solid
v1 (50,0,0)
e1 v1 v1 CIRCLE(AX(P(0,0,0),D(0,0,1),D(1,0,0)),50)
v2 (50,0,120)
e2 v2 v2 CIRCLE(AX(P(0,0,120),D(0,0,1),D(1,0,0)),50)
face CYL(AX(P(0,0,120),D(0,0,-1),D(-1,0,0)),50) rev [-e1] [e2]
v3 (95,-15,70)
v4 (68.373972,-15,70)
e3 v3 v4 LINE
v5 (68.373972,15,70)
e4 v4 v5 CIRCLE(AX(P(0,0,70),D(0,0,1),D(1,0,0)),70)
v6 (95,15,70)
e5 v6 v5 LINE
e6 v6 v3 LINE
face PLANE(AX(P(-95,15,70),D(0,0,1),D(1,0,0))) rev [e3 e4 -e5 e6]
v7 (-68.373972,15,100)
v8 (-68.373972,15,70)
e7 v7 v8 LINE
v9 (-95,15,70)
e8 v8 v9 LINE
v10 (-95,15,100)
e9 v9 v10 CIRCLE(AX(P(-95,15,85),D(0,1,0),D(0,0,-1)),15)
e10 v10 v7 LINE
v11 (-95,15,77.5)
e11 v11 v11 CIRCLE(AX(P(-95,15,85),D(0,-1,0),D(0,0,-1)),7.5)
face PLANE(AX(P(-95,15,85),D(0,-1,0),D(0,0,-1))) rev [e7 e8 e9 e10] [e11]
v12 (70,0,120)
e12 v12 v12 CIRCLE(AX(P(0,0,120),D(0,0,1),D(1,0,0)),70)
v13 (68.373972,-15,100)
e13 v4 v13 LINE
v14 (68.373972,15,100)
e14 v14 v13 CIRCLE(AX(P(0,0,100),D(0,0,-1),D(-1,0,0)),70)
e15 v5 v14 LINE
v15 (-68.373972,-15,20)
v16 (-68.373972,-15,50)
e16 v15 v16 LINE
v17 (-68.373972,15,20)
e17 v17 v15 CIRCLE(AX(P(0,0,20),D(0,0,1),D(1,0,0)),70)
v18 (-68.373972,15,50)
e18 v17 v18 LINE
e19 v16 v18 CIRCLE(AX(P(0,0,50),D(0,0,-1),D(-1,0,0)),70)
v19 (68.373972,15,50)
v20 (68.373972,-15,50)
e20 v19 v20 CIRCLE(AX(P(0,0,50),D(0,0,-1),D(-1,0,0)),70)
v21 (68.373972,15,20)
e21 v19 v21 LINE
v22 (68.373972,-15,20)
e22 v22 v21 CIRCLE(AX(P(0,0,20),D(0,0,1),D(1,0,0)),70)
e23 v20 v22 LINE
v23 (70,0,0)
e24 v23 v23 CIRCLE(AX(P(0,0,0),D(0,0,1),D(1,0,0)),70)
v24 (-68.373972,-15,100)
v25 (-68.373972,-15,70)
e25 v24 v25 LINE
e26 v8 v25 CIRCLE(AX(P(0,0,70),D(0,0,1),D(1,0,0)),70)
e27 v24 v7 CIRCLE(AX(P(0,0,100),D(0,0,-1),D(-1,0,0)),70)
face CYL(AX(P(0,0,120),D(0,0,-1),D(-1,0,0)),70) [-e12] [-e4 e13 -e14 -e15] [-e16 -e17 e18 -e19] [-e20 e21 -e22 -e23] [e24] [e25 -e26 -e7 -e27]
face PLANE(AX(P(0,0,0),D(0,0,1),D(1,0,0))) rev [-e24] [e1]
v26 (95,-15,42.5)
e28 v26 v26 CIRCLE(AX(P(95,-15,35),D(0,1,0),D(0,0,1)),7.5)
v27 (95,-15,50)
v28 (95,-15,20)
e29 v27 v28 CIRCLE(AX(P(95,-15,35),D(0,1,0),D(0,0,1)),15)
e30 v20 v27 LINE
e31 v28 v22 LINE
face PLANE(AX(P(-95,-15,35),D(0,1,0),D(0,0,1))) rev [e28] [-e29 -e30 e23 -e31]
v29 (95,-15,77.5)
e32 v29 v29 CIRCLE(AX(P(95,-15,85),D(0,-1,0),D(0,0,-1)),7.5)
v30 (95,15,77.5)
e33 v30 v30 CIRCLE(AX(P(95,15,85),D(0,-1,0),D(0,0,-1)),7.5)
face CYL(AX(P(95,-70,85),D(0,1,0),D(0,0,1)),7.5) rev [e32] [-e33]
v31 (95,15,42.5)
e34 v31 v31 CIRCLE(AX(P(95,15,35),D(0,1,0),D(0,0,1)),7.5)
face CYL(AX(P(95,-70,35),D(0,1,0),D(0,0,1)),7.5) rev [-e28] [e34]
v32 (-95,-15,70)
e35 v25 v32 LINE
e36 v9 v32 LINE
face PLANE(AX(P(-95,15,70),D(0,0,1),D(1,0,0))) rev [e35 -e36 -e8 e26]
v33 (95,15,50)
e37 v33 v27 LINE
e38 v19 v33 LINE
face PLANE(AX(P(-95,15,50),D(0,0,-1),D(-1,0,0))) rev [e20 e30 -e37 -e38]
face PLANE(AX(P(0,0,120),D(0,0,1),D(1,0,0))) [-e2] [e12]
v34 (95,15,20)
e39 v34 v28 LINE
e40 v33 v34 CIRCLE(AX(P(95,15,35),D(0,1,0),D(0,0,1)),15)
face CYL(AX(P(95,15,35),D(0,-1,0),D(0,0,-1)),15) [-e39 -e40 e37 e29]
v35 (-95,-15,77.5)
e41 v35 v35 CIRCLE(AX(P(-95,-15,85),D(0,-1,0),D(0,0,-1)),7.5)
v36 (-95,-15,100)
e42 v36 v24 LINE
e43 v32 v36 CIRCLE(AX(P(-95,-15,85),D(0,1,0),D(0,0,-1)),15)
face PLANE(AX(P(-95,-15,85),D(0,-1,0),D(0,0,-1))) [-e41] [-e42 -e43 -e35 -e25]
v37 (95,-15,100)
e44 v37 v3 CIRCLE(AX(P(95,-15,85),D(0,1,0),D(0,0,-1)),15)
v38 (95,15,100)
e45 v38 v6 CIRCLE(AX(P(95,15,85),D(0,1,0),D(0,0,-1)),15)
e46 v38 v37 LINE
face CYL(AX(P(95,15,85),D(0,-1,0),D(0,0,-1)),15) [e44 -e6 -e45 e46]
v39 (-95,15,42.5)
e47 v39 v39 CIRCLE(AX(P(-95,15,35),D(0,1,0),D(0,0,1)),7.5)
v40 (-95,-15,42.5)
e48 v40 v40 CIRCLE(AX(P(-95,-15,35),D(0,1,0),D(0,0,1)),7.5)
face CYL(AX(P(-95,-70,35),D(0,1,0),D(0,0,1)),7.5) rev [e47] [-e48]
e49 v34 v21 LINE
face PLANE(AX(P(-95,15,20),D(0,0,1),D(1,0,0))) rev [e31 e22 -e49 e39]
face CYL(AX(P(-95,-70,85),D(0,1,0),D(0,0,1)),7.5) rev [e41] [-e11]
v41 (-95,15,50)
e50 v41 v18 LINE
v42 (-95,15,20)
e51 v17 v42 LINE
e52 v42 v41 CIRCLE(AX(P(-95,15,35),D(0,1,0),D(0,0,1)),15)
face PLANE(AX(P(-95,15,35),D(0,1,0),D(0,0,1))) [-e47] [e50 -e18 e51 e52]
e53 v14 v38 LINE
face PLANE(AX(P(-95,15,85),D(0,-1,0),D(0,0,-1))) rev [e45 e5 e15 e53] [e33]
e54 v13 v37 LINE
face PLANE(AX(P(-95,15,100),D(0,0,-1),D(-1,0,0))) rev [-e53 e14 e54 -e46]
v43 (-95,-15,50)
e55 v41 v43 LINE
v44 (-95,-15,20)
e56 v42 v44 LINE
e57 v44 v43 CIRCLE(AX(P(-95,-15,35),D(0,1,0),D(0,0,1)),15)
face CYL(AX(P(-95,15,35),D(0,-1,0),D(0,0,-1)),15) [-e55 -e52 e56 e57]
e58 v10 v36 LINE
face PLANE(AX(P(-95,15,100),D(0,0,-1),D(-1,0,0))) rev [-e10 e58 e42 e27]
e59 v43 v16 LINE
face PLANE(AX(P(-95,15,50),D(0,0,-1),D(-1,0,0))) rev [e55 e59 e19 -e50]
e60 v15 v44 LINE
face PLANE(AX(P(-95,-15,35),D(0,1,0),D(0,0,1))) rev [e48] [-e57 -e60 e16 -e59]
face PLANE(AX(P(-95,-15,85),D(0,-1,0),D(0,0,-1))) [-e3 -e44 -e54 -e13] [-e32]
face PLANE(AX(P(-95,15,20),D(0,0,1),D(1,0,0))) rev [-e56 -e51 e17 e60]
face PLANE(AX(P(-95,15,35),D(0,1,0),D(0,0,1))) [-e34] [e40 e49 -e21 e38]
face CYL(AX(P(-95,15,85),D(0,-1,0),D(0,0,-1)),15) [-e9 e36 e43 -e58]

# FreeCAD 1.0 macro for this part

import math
import FreeCAD as App
import Part
import Sketcher
from FreeCAD import Vector
Q = App.Units.Quantity

doc = App.newDocument("Part")
body = doc.addObject("PartDesign::Body", "Body")

sketch1 = body.newObject("Sketcher::SketchObject", "Sketch")
sketch1.AttachmentSupport = (doc.getObject("XY_Plane"), [""])
sketch1.MapMode = "FlatFace"
sketch1.addGeometry(Part.Circle(Vector(0, 0, 0), Vector(0, 0, 1), 70), False)
sketch1.addConstraint([
    Sketcher.Constraint("Coincident", 0, 3, -1, 1),
    Sketcher.Constraint("Diameter", 0, Q("140 mm")),
])
pad1 = body.newObject("PartDesign::Pad", "Pad")
pad1.Profile = sketch1
pad1.Length = 120

sketch2 = body.newObject("Sketcher::SketchObject", "Sketch001")
sketch2.AttachmentSupport = (doc.getObject("XY_Plane"), [""])
sketch2.MapMode = "FlatFace"
sketch2.addGeometry(Part.Circle(Vector(0, 0, 0), Vector(0, 0, 1), 50), False)
sketch2.addConstraint([
    Sketcher.Constraint("Coincident", 0, 3, -1, 1),
    Sketcher.Constraint("Diameter", 0, Q("100 mm")),
])
pocket1 = body.newObject("PartDesign::Pocket", "Pocket")
pocket1.Profile = sketch2
pocket1.Type = "ThroughAll"
pocket1.Reversed = True

sketch3 = body.newObject("Sketcher::SketchObject", "Sketch002")
sketch3.AttachmentSupport = (doc.getObject("XZ_Plane"), [""])
sketch3.MapMode = "FlatFace"
sketch3.addGeometry([
    Part.LineSegment(Vector(95, 20, 0), Vector(-95, 20, 0)),
    Part.ArcOfCircle(Part.Circle(Vector(-95, 35, 0), Vector(0, 0, 1), 15), math.radians(90), math.radians(270)),
    Part.LineSegment(Vector(-95, 50, 0), Vector(95, 50, 0)),
    Part.ArcOfCircle(Part.Circle(Vector(95, 35, 0), Vector(0, 0, 1), 15), math.radians(-90), math.radians(90)),
    Part.LineSegment(Vector(-95, 100, 0), Vector(95, 100, 0)),
    Part.ArcOfCircle(Part.Circle(Vector(95, 85, 0), Vector(0, 0, 1), 15), math.radians(-90), math.radians(90)),
    Part.LineSegment(Vector(95, 70, 0), Vector(-95, 70, 0)),
    Part.ArcOfCircle(Part.Circle(Vector(-95, 85, 0), Vector(0, 0, 1), 15), math.radians(90), math.radians(270)),
], False)
sketch3.addConstraint([
    Sketcher.Constraint("Tangent", 0, 2, 1, 2),
    Sketcher.Constraint("Tangent", 1, 1, 2, 1),
    Sketcher.Constraint("Tangent", 2, 2, 3, 2),
    Sketcher.Constraint("Tangent", 3, 1, 0, 1),
    Sketcher.Constraint("Tangent", 4, 2, 5, 2),
    Sketcher.Constraint("Tangent", 5, 1, 6, 1),
    Sketcher.Constraint("Tangent", 6, 2, 7, 2),
    Sketcher.Constraint("Tangent", 7, 1, 4, 1),
    Sketcher.Constraint("Horizontal", 0),
    Sketcher.Constraint("Horizontal", 2),
    Sketcher.Constraint("Horizontal", 4),
    Sketcher.Constraint("Horizontal", 6),
    Sketcher.Constraint("Equal", 3, 5),
    Sketcher.Constraint("Vertical", 3, 3, 5, 3),
    Sketcher.Constraint("Vertical", 1, 3, 7, 3),
    Sketcher.Constraint("Radius", 1, Q("15 mm")),
    Sketcher.Constraint("DistanceX", 0, 2, 0, 1, Q("190 mm")),
    Sketcher.Constraint("DistanceX", 1, 3, -1, 1, Q("95 mm")),
    Sketcher.Constraint("DistanceY", -1, 1, 1, 3, Q("35 mm")),
    Sketcher.Constraint("DistanceY", -1, 1, 5, 3, Q("85 mm")),
])
pad2 = body.newObject("PartDesign::Pad", "Pad001")
pad2.Profile = sketch3
pad2.Length = 30
pad2.Midplane = True

sketch4 = body.newObject("Sketcher::SketchObject", "Sketch003")
sketch4.AttachmentSupport = (doc.getObject("XZ_Plane"), [""])
sketch4.MapMode = "FlatFace"
sketch4.addGeometry([
    Part.Circle(Vector(95, 35, 0), Vector(0, 0, 1), 7.5),
    Part.Circle(Vector(95, 85, 0), Vector(0, 0, 1), 7.5),
    Part.Circle(Vector(-95, 35, 0), Vector(0, 0, 1), 7.5),
    Part.Circle(Vector(-95, 85, 0), Vector(0, 0, 1), 7.5),
], False)
sketch4.addConstraint([
    Sketcher.Constraint("Equal", 0, 1),
    Sketcher.Constraint("Equal", 1, 2),
    Sketcher.Constraint("Equal", 2, 3),
    Sketcher.Constraint("Symmetric", 0, 3, 2, 3, -2),
    Sketcher.Constraint("Symmetric", 1, 3, 3, 3, -2),
    Sketcher.Constraint("Vertical", 0, 3, 1, 3),
    Sketcher.Constraint("Diameter", 0, Q("15 mm")),
    Sketcher.Constraint("DistanceX", -1, 1, 0, 3, Q("95 mm")),
    Sketcher.Constraint("DistanceY", -1, 1, 0, 3, Q("35 mm")),
    Sketcher.Constraint("DistanceY", -1, 1, 1, 3, Q("85 mm")),
])
pocket2 = body.newObject("PartDesign::Pocket", "Pocket001")
pocket2.Profile = sketch4
pocket2.Type = "ThroughAll"
pocket2.Midplane = True

sketch5 = body.newObject("Sketcher::SketchObject", "Sketch004")
sketch5.AttachmentSupport = (doc.getObject("XY_Plane"), [""])
sketch5.MapMode = "FlatFace"
sketch5.addGeometry(Part.Circle(Vector(0, 0, 0), Vector(0, 0, 1), 50), False)
sketch5.addConstraint([
    Sketcher.Constraint("Coincident", 0, 3, -1, 1),
    Sketcher.Constraint("Diameter", 0, Q("100 mm")),
])
pocket3 = body.newObject("PartDesign::Pocket", "Pocket002")
pocket3.Profile = sketch5
pocket3.Type = "ThroughAll"
pocket3.Reversed = True

doc.recompute()
